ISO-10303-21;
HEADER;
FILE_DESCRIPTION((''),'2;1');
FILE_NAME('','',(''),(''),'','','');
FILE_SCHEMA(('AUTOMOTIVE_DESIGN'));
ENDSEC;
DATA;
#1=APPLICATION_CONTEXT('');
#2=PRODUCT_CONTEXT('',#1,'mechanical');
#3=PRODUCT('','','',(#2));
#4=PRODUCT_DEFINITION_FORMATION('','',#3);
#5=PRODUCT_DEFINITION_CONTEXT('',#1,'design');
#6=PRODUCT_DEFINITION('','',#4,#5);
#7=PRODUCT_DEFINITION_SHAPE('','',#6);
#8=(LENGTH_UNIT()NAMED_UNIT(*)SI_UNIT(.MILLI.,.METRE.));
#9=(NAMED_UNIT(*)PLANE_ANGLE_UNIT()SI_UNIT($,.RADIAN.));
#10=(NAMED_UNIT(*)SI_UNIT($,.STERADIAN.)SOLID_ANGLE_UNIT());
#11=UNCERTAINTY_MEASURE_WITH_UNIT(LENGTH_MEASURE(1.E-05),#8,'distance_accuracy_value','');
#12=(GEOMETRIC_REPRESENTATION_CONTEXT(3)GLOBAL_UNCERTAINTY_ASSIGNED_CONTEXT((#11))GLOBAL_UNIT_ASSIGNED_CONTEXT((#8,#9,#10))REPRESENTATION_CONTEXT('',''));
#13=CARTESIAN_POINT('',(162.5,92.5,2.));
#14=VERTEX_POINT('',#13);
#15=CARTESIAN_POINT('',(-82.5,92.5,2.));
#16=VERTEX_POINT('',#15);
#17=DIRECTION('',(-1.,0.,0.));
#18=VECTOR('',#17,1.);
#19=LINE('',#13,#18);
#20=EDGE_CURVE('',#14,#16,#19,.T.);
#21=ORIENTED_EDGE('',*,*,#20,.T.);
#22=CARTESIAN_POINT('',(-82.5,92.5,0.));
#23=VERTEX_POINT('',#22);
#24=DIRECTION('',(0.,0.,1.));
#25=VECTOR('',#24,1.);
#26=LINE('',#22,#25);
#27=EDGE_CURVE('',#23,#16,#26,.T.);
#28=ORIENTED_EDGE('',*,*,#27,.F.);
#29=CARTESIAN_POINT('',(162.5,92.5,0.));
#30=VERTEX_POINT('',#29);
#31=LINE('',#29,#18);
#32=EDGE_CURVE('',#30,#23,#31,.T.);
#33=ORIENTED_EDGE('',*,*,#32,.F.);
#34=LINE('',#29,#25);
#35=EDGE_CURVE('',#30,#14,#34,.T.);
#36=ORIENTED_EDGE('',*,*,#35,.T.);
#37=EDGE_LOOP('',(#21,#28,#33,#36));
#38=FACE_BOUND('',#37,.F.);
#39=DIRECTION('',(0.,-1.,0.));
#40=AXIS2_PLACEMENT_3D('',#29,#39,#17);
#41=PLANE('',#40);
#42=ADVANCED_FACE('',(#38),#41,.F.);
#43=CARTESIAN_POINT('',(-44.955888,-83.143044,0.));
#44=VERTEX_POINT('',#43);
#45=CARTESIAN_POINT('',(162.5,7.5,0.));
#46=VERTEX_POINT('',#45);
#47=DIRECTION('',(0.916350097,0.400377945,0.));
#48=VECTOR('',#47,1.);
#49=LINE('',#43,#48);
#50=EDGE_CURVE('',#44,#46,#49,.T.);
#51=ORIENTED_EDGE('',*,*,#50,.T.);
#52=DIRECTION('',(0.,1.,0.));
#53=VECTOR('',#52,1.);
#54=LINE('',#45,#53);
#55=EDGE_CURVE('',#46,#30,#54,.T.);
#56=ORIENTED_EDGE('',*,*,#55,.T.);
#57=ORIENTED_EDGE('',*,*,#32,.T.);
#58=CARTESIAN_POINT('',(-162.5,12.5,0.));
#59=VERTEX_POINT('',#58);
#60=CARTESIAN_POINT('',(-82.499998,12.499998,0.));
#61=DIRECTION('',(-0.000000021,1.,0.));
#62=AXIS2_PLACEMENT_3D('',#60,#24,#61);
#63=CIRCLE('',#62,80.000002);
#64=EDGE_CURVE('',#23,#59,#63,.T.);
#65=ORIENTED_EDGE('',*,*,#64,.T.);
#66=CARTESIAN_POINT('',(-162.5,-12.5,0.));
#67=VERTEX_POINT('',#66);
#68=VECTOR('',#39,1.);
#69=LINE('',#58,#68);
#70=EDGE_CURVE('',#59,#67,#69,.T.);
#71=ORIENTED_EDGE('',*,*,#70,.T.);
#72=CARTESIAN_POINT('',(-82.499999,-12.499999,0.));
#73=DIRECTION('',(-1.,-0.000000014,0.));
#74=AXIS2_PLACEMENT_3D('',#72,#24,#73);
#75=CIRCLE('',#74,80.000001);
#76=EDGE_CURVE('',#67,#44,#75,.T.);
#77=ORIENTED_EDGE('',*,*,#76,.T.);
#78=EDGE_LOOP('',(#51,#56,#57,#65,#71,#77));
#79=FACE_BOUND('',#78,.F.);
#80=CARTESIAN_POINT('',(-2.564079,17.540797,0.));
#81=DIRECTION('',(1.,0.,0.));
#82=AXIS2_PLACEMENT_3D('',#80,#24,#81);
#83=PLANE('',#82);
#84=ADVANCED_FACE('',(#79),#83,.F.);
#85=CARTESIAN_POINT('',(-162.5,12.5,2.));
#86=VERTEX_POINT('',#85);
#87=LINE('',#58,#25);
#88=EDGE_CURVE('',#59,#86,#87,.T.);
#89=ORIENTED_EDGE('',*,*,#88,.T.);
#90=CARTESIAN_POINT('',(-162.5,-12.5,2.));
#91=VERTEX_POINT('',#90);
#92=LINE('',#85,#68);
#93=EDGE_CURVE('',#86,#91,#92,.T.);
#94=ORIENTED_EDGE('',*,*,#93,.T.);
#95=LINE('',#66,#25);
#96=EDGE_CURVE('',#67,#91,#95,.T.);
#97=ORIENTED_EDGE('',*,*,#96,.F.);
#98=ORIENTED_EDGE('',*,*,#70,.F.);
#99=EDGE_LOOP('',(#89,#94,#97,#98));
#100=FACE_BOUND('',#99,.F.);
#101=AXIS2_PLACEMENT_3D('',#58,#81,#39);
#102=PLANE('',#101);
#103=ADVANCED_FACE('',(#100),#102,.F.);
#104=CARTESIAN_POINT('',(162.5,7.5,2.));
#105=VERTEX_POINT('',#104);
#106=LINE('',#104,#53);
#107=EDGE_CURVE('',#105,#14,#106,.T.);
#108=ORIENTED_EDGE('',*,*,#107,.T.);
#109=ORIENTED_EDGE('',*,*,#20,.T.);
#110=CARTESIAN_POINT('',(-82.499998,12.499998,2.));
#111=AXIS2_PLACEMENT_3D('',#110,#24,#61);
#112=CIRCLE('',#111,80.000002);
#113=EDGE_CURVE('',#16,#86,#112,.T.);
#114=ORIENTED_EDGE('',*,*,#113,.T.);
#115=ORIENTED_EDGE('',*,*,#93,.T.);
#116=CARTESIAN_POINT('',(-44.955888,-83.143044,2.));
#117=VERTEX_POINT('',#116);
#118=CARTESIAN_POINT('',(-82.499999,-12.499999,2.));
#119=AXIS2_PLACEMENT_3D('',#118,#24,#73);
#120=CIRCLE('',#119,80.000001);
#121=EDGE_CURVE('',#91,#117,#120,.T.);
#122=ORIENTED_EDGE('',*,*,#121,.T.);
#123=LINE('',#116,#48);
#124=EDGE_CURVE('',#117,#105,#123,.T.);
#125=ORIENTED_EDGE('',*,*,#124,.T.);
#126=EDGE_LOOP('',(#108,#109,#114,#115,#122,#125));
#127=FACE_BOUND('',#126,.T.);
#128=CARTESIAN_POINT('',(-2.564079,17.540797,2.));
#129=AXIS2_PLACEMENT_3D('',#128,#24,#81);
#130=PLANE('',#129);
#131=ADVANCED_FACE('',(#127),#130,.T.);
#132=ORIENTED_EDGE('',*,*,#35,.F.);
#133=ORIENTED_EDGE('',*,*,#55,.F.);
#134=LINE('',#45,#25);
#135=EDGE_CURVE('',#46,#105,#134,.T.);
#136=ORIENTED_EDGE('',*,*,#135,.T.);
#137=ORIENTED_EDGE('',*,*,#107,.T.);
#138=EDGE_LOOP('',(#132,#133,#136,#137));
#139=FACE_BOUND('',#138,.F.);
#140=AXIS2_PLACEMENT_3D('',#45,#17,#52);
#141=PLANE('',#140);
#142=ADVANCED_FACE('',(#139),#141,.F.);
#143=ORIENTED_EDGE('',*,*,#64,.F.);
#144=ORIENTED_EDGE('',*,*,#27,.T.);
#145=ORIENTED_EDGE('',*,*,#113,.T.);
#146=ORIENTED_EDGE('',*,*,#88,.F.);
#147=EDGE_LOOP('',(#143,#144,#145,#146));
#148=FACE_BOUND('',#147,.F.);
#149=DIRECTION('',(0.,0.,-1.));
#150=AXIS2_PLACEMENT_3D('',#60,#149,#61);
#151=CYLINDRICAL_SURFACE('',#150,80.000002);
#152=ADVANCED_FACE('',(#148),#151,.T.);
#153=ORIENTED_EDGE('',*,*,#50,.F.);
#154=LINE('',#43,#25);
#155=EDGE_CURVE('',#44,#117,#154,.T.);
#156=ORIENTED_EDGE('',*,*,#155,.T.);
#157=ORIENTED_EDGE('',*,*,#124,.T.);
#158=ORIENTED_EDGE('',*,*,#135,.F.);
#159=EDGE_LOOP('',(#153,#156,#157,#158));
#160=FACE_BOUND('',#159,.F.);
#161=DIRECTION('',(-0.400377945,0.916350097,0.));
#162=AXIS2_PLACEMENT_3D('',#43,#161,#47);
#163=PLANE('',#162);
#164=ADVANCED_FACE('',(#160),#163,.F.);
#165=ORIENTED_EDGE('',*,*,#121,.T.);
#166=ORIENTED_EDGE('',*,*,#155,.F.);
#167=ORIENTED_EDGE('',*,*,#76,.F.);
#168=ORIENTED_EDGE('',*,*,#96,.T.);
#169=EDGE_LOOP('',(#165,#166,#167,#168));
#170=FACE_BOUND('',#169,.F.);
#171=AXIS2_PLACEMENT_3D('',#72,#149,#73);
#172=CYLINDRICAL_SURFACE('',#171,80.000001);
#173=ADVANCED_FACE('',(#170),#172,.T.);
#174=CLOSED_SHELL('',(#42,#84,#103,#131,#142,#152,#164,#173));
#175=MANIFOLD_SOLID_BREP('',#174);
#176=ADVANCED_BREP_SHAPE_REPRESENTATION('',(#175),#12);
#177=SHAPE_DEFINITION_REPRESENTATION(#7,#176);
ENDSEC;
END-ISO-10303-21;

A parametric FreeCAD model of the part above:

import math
import FreeCAD as App
import Part
import Sketcher
from FreeCAD import Vector
Q = App.Units.Quantity

doc = App.newDocument("Part")
body = doc.addObject("PartDesign::Body", "Body")

sketch1 = body.newObject("Sketcher::SketchObject", "Sketch")
sketch1.AttachmentSupport = (doc.getObject("XY_Plane"), [""])
sketch1.MapMode = "FlatFace"
sketch1.addGeometry([
    Part.ArcOfCircle(Part.Circle(Vector(-82, 12, 0), Vector(0, 0, 1), 80), math.radians(90), math.radians(180)),
    Part.LineSegment(Vector(-162, 12, 0), Vector(-162, -12, 0)),
    Part.ArcOfCircle(Part.Circle(Vector(-82, -12, 0), Vector(0, 0, 1), 80), math.radians(-180), math.radians(-62)),
    Part.LineSegment(Vector(-45, -83, 0), Vector(162, 8, 0)),
    Part.LineSegment(Vector(162, 8, 0), Vector(162, 92, 0)),
    Part.LineSegment(Vector(162, 92, 0), Vector(-82, 92, 0)),
], False)
sketch1.addConstraint([
    Sketcher.Constraint("Tangent", 0, 2, 1, 1),
    Sketcher.Constraint("Tangent", 1, 2, 2, 1),
    Sketcher.Constraint("Coincident", 2, 2, 3, 1),
    Sketcher.Constraint("Coincident", 3, 2, 4, 1),
    Sketcher.Constraint("Coincident", 4, 2, 5, 1),
    Sketcher.Constraint("Tangent", 5, 2, 0, 1),
    Sketcher.Constraint("Vertical", 1),
    Sketcher.Constraint("Vertical", 4),
    Sketcher.Constraint("Horizontal", 5),
    Sketcher.Constraint("Equal", 0, 2),
    Sketcher.Constraint("Radius", 0, Q("80.000002 mm")),
    Sketcher.Constraint("DistanceX", 5, 2, 5, 1, Q("245 mm")),
    Sketcher.Constraint("DistanceY", 1, 2, 1, 1, Q("25 mm")),
    Sketcher.Constraint("DistanceY", 4, 1, 4, 2, Q("85 mm")),
    Sketcher.Constraint("DistanceX", 0, 3, -1, 1, Q("82.499998 mm")),
    Sketcher.Constraint("DistanceY", -1, 1, 0, 3, Q("12.499998 mm")),
    Sketcher.Constraint("Distance", 3, Q("226.393699 mm")),
])
pad1 = body.newObject("PartDesign::Pad", "Pad")
pad1.Profile = sketch1
pad1.Length = 2

doc.recompute()
